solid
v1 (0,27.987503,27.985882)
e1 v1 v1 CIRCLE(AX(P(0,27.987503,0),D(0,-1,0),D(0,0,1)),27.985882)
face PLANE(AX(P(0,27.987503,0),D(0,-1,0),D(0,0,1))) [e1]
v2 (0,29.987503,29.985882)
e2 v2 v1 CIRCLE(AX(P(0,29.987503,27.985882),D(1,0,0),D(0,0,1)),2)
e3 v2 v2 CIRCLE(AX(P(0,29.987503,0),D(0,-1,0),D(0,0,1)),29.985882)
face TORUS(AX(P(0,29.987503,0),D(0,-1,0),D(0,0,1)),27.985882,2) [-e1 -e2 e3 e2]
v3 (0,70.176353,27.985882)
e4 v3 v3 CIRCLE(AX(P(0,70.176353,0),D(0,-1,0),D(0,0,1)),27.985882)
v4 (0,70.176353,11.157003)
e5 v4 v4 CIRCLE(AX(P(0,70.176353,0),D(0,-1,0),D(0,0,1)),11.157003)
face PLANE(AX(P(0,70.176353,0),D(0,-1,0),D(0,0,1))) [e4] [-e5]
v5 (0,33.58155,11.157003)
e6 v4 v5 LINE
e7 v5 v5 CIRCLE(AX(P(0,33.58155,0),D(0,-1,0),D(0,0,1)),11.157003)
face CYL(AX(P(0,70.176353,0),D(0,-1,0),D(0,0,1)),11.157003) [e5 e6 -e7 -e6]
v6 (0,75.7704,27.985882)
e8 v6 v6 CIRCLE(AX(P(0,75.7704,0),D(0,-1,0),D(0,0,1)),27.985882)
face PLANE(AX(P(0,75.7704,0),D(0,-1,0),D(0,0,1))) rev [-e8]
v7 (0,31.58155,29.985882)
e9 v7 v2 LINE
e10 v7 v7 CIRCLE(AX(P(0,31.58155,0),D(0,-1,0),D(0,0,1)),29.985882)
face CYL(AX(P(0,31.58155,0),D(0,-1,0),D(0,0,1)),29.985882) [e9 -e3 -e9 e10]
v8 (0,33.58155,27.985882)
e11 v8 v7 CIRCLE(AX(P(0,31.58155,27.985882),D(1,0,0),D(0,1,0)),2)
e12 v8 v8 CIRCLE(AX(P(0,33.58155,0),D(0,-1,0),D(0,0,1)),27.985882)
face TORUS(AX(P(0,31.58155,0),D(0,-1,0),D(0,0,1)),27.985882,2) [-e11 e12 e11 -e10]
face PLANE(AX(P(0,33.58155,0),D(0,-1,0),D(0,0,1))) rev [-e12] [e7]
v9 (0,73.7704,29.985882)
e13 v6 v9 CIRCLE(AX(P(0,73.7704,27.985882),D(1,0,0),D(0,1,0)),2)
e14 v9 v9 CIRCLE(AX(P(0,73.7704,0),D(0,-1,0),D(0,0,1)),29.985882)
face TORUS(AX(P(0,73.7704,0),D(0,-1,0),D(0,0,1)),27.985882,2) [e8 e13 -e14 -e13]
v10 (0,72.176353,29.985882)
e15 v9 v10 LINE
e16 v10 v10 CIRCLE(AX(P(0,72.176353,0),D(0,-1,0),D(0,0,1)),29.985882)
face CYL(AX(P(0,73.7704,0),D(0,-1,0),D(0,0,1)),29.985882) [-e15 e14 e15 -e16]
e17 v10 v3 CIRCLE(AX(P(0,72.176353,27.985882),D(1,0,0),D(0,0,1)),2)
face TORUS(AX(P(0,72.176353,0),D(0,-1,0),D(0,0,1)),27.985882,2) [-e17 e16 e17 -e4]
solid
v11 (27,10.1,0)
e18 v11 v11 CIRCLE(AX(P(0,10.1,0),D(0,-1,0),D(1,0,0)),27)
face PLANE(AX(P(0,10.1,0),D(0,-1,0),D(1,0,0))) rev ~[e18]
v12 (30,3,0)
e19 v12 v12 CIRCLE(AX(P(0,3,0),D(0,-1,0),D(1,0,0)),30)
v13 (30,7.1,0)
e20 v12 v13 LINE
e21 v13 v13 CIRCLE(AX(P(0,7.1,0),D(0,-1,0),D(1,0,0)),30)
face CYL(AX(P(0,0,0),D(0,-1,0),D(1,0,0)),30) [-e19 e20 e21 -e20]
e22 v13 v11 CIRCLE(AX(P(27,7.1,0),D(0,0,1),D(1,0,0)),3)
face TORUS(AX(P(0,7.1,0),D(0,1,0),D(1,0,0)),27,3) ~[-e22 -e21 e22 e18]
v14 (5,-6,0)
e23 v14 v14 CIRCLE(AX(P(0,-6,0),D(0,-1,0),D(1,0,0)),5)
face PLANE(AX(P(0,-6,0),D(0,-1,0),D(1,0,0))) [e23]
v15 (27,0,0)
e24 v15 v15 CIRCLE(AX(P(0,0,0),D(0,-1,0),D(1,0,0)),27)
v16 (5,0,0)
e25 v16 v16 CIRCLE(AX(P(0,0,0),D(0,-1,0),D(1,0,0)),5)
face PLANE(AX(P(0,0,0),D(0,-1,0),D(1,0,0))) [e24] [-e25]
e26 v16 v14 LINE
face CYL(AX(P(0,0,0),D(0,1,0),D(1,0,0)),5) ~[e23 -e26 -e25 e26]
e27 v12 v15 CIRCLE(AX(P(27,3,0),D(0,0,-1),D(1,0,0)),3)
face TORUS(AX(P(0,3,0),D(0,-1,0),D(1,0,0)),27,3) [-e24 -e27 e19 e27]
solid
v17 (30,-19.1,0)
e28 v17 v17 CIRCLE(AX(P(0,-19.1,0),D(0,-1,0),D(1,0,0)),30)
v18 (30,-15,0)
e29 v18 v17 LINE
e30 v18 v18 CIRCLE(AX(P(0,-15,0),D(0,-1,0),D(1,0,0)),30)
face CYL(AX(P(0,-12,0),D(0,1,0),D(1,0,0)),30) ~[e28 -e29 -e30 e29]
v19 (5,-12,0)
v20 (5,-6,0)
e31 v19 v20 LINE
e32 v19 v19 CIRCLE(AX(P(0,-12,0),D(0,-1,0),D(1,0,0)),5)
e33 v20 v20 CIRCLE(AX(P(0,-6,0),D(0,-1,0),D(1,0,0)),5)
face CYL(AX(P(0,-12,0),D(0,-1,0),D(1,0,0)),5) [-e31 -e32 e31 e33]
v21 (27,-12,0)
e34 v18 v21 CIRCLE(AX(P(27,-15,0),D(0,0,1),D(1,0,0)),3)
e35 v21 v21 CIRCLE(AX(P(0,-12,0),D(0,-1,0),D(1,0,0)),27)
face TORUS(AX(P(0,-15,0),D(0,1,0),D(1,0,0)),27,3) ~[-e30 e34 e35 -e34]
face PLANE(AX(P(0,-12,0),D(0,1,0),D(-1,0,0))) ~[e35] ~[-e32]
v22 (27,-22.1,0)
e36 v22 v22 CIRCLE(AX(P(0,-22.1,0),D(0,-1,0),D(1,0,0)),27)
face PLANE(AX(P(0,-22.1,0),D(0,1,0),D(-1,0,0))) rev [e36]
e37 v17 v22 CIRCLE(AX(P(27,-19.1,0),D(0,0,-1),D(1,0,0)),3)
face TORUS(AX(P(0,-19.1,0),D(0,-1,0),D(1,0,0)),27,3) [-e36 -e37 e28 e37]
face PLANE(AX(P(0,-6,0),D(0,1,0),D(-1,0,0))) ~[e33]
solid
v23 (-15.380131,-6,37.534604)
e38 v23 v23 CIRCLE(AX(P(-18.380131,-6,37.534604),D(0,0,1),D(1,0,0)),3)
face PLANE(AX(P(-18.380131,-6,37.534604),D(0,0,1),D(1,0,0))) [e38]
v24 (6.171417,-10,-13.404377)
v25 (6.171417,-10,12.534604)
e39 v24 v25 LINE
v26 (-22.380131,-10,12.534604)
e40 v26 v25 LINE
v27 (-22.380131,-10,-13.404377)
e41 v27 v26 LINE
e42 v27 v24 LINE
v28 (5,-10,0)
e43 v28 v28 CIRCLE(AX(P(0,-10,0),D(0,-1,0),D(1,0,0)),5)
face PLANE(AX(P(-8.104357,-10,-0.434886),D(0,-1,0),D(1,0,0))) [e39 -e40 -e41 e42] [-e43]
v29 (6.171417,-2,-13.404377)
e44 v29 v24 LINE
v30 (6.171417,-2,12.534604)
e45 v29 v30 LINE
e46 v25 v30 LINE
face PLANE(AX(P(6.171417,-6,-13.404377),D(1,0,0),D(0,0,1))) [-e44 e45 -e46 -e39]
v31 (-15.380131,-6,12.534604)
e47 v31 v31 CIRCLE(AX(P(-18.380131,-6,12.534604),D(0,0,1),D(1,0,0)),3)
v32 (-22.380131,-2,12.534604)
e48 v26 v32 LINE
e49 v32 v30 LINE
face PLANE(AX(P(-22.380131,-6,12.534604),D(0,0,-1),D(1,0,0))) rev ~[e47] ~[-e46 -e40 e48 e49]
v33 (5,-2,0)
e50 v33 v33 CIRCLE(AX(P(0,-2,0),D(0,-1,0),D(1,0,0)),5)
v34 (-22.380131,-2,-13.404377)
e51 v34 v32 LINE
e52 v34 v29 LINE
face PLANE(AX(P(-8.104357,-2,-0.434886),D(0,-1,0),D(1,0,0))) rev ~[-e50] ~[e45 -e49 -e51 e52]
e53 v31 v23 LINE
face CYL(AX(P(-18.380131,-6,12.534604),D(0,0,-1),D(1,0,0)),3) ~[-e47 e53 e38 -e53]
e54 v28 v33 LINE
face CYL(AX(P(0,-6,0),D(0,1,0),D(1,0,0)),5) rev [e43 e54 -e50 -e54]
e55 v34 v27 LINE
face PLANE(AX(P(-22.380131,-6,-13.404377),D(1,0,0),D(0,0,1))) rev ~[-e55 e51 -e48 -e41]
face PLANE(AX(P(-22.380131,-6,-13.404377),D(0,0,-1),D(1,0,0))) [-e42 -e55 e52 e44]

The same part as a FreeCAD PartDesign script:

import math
import FreeCAD as App
import Part
import Sketcher
Q = App.Units.Quantity


def edges_at(feature, points):
    """Names of the edges that pass closest to the given points."""
    edges = feature.Shape.Edges
    near = lambda p: min(range(len(edges)), key=lambda i: edges[i].distToShape(Part.Vertex(*p))[0])
    return sorted({f"Edge{near(p) + 1}" for p in points})


def add_polygon(sketch, points):
    """Adds a closed chain of lines whose ends are joined by coincident constraints."""
    first, n = sketch.GeometryCount, len(points)
    for a, b in zip(points, points[1:] + points[:1]):
        sketch.addGeometry(Part.LineSegment(App.Vector(*a, 0), App.Vector(*b, 0)), False)
    for i in range(n):
        sketch.addConstraint(Sketcher.Constraint("Coincident", first + i, 2, first + (i + 1) % n, 1))

doc = App.newDocument("Part")
params = doc.addObject("Spreadsheet::Sheet", "Params")
for row, (alias, value) in enumerate([
    ("sketch1_diameter", "60 mm"),
    ("pad1_length", "10.1 mm"),
    ("fillet_radius", "3 mm"),
    ("sketch2_diameter", "10 mm"),
    ("pad2_length", "6 mm"),
    ("sketch3_diameter", "10 mm"),
    ("pad3_length", "8 mm"),
    ("sketch4_diameter", "6 mm"),
    ("pad4_length", "25 mm"),
    ("sketch5_radius", "2 mm"),
    ("revolution_angle", "360 deg"),
], start=1):
    params.set(f"A{row}", alias)
    params.set(f"B{row}", "=" + value)
    params.setAlias(f"B{row}", alias)

body = doc.addObject("PartDesign::Body", "Body")

# Sketch on XZ plane
sketch1 = body.newObject("Sketcher::SketchObject", "Sketch")
sketch1.AttachmentSupport = (doc.getObject("XZ_Plane"), [""])
sketch1.MapMode = "FlatFace"
sketch1.addGeometry(Part.Circle(App.Vector(0, 0, 0), App.Vector(0, 0, 1), 30), False)
sketch1.addConstraint(Sketcher.Constraint("Coincident", 0, 3, -1, 1))
sketch1.addConstraint(Sketcher.Constraint("Diameter", 0, Q("60 mm")))
sketch1.setExpression("Constraints[1]", "Params.sketch1_diameter")
pad1 = body.newObject("PartDesign::Pad", "Pad")
pad1.Profile = sketch1
pad1.setExpression("Length", "Params.pad1_length")
pad1.Reversed = True
doc.recompute()

fillet = body.newObject("PartDesign::Fillet", "Fillet")
fillet.Base = (pad1, edges_at(pad1, [(-30, 10.1, 0), (-30, 0, 0)]))
fillet.setExpression("Radius", "Params.fillet_radius")

# Sketch on XZ plane
sketch2 = body.newObject("Sketcher::SketchObject", "Sketch001")
sketch2.AttachmentSupport = (doc.getObject("XZ_Plane"), [""])
sketch2.MapMode = "FlatFace"
sketch2.addGeometry(Part.Circle(App.Vector(0, 0, 0), App.Vector(0, 0, 1), 5), False)
sketch2.addConstraint(Sketcher.Constraint("Coincident", 0, 3, -1, 1))
sketch2.addConstraint(Sketcher.Constraint("Diameter", 0, Q("10 mm")))
sketch2.setExpression("Constraints[1]", "Params.sketch2_diameter")
pad2 = body.newObject("PartDesign::Pad", "Pad001")
pad2.Profile = sketch2
pad2.setExpression("Length", "Params.pad2_length")
body2 = doc.addObject("PartDesign::Body", "Body001")
doc.recompute()

mirroring = doc.addObject("Part::Mirroring", "Mirroring")
mirroring.Source = body
mirroring.Base = App.Vector(0, -6, 0)
mirroring.Normal = App.Vector(0, -1, 0)
body2.BaseFeature = mirroring
doc.recompute()
body3 = doc.addObject("PartDesign::Body", "Body002")

# Sketch on XZ plane
sketch3 = body3.newObject("Sketcher::SketchObject", "Sketch002")
sketch3.AttachmentSupport = (doc.getObject("XZ_Plane002"), [""])
sketch3.MapMode = "FlatFace"
sketch3.AttachmentOffset = App.Placement(App.Vector(0, 0, 6), App.Rotation())
add_polygon(sketch3, [(-22, 13), (-22, -13), (6, -13), (6, 13)])  # lines 0-3
sketch3.addGeometry(Part.Circle(App.Vector(0, 0, 0), App.Vector(0, 0, 1), 5), False)  # 4
sketch3.addConstraint(Sketcher.Constraint("Vertical", 0))
sketch3.addConstraint(Sketcher.Constraint("Horizontal", 1))
sketch3.addConstraint(Sketcher.Constraint("Vertical", 2))
sketch3.addConstraint(Sketcher.Constraint("Horizontal", 3))
sketch3.addConstraint(Sketcher.Constraint("Coincident", 4, 3, -1, 1))
sketch3.addConstraint(Sketcher.Constraint("Diameter", 4, Q("10 mm")))
sketch3.addConstraint(Sketcher.Constraint("DistanceX", 1, 1, 1, 2, Q("28.551549 mm")))
sketch3.addConstraint(Sketcher.Constraint("DistanceY", 0, 2, 0, 1, Q("25.938982 mm")))
sketch3.addConstraint(Sketcher.Constraint("DistanceX", 0, 2, -1, 1, Q("22.380131 mm")))
sketch3.addConstraint(Sketcher.Constraint("DistanceY", 0, 2, -1, 1, Q("13.404377 mm")))
sketch3.setExpression("Constraints[9]", "Params.sketch3_diameter")
pad3 = body3.newObject("PartDesign::Pad", "Pad002")
pad3.Profile = sketch3
pad3.setExpression("Length", "Params.pad3_length")
pad3.Midplane = True

# Sketch on XY plane
sketch4 = body3.newObject("Sketcher::SketchObject", "Sketch003")
sketch4.AttachmentSupport = (doc.getObject("XY_Plane002"), [""])
sketch4.MapMode = "FlatFace"
sketch4.AttachmentOffset = App.Placement(App.Vector(0, 0, 12.534604), App.Rotation())
sketch4.addGeometry(Part.Circle(App.Vector(-18.4, -6, 0), App.Vector(0, 0, 1), 3), False)
sketch4.addConstraint(Sketcher.Constraint("Diameter", 0, Q("6 mm")))
sketch4.addConstraint(Sketcher.Constraint("DistanceY", 0, 3, -1, 1, Q("6 mm")))
sketch4.addConstraint(Sketcher.Constraint("DistanceX", 0, 3, -1, 1, Q("18.380131 mm")))
sketch4.setExpression("Constraints[0]", "Params.sketch4_diameter")
pad4 = body3.newObject("PartDesign::Pad", "Pad003")
pad4.Profile = sketch4
pad4.setExpression("Length", "Params.pad4_length")
body4 = doc.addObject("PartDesign::Body", "Body003")

# Sketch on YZ plane
sketch5 = body4.newObject("Sketcher::SketchObject", "Sketch004")
sketch5.AttachmentSupport = (doc.getObject("YZ_Plane003"), [""])
sketch5.MapMode = "FlatFace"
sketch5.addGeometry(Part.LineSegment(App.Vector(70.2, 11.2, 0), App.Vector(33.6, 11.2, 0)), False)
sketch5.addGeometry(Part.LineSegment(App.Vector(33.6, 11.2, 0), App.Vector(33.6, 28, 0)), False)
sketch5.addGeometry(Part.ArcOfCircle(Part.Circle(App.Vector(31.6, 28, 0), App.Vector(0, 0, 1), 2), math.radians(0), math.radians(90)), False)
sketch5.addGeometry(Part.LineSegment(App.Vector(31.6, 30, 0), App.Vector(30, 30, 0)), False)
sketch5.addGeometry(Part.ArcOfCircle(Part.Circle(App.Vector(30, 28, 0), App.Vector(0, 0, 1), 2), math.radians(90), math.radians(180)), False)
sketch5.addGeometry(Part.LineSegment(App.Vector(28, 28, 0), App.Vector(28, 0, 0)), False)
sketch5.addGeometry(Part.LineSegment(App.Vector(28, 0, 0), App.Vector(75.8, 0, 0)), False)
sketch5.addGeometry(Part.LineSegment(App.Vector(75.8, 0, 0), App.Vector(75.8, 28, 0)), False)
sketch5.addGeometry(Part.ArcOfCircle(Part.Circle(App.Vector(73.8, 28, 0), App.Vector(0, 0, 1), 2), math.radians(0), math.radians(90)), False)
sketch5.addGeometry(Part.LineSegment(App.Vector(73.8, 30, 0), App.Vector(72.2, 30, 0)), False)
sketch5.addGeometry(Part.ArcOfCircle(Part.Circle(App.Vector(72.2, 28, 0), App.Vector(0, 0, 1), 2), math.radians(90), math.radians(180)), False)
sketch5.addGeometry(Part.LineSegment(App.Vector(70.2, 28, 0), App.Vector(70.2, 11.2, 0)), False)
sketch5.addConstraint(Sketcher.Constraint("Coincident", 0, 2, 1, 1))
sketch5.addConstraint(Sketcher.Constraint("Tangent", 1, 2, 2, 1))
sketch5.addConstraint(Sketcher.Constraint("Tangent", 2, 2, 3, 1))
sketch5.addConstraint(Sketcher.Constraint("Tangent", 3, 2, 4, 1))
sketch5.addConstraint(Sketcher.Constraint("Tangent", 4, 2, 5, 1))
sketch5.addConstraint(Sketcher.Constraint("Coincident", 5, 2, 6, 1))
sketch5.addConstraint(Sketcher.Constraint("Coincident", 6, 2, 7, 1))
sketch5.addConstraint(Sketcher.Constraint("Tangent", 7, 2, 8, 1))
sketch5.addConstraint(Sketcher.Constraint("Tangent", 8, 2, 9, 1))
sketch5.addConstraint(Sketcher.Constraint("Tangent", 9, 2, 10, 1))
sketch5.addConstraint(Sketcher.Constraint("Tangent", 10, 2, 11, 1))
sketch5.addConstraint(Sketcher.Constraint("Coincident", 11, 2, 0, 1))
sketch5.addConstraint(Sketcher.Constraint("Horizontal", 0))
sketch5.addConstraint(Sketcher.Constraint("Vertical", 1))
sketch5.addConstraint(Sketcher.Constraint("Horizontal", 3))
sketch5.addConstraint(Sketcher.Constraint("Vertical", 5))
sketch5.addConstraint(Sketcher.Constraint("Horizontal", 6))
sketch5.addConstraint(Sketcher.Constraint("Vertical", 7))
sketch5.addConstraint(Sketcher.Constraint("Horizontal", 9))
sketch5.addConstraint(Sketcher.Constraint("Vertical", 11))
sketch5.addConstraint(Sketcher.Constraint("Equal", 2, 4))
sketch5.addConstraint(Sketcher.Constraint("Equal", 4, 8))
sketch5.addConstraint(Sketcher.Constraint("Equal", 8, 10))
sketch5.addConstraint(Sketcher.Constraint("PointOnObject", 5, 2, -1))
sketch5.addConstraint(Sketcher.Constraint("Horizontal", 4, 3, 8, 3))
sketch5.addConstraint(Sketcher.Constraint("Equal", 3, 9))
sketch5.addConstraint(Sketcher.Constraint("Radius", 2, Q("2 mm")))
sketch5.addConstraint(Sketcher.Constraint("DistanceY", 1, 1, 1, 2, Q("16.82888 mm")))
sketch5.addConstraint(Sketcher.Constraint("DistanceX", -1, 1, 8, 3, Q("73.7704 mm")))
sketch5.addConstraint(Sketcher.Constraint("DistanceX", 0, 2, 0, 1, Q("36.594803 mm")))
sketch5.addConstraint(Sketcher.Constraint("DistanceX", 3, 2, 3, 1, Q("1.594047 mm")))
sketch5.addConstraint(Sketcher.Constraint("DistanceY", 5, 2, 5, 1, Q("27.985882 mm")))
sketch5.setExpression("Constraints[26]", "Params.sketch5_radius")
revolution = body4.newObject("PartDesign::Revolution", "Revolution")
revolution.Profile = sketch5
revolution.ReferenceAxis = (sketch5, ["H_Axis"])
revolution.setExpression("Angle", "Params.revolution_angle")
mirroring.Visibility = False

doc.recompute()
